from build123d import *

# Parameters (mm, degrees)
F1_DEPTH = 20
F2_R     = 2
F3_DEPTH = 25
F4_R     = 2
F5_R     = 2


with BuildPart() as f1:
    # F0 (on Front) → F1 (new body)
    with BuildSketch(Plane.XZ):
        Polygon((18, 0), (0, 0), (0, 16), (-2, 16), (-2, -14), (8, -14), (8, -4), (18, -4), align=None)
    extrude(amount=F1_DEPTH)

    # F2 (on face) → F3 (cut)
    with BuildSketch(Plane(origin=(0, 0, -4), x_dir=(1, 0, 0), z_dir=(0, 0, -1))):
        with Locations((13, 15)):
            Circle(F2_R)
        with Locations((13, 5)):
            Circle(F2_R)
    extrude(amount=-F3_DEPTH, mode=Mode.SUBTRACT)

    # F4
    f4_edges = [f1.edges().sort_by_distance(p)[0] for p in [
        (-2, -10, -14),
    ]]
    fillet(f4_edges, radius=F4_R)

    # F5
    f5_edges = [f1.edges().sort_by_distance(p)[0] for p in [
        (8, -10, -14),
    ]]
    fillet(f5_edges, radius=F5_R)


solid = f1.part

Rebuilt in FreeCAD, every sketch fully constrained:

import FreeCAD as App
import Part
import Sketcher

V = App.Vector
Q = App.Units.Quantity


def edges_at(feature, points):
    """Names of the edges that pass closest to the given points."""
    edges = feature.Shape.Edges
    near = lambda p: min(range(len(edges)), key=lambda i: edges[i].distToShape(Part.Vertex(*p))[0])
    return sorted({f"Edge{near(p) + 1}" for p in points})

doc = App.newDocument("Part")
body = doc.addObject("PartDesign::Body", "Body")

# Sketch on XZ plane
sketch1 = body.newObject("Sketcher::SketchObject", "Sketch")
sketch1.AttachmentSupport = (doc.getObject("XZ_Plane"), [""])
sketch1.MapMode = "FlatFace"
sketch1.addGeometry([
    Part.LineSegment(V(18, 0, 0), V(0, 0, 0)),  # 0
    Part.LineSegment(V(0, 0, 0), V(0, 16, 0)),  # 1
    Part.LineSegment(V(0, 16, 0), V(-2, 16, 0)),  # 2
    Part.LineSegment(V(-2, 16, 0), V(-2, -14, 0)),  # 3
    Part.LineSegment(V(-2, -14, 0), V(8, -14, 0)),  # 4
    Part.LineSegment(V(8, -14, 0), V(8, -4, 0)),  # 5
    Part.LineSegment(V(8, -4, 0), V(18, -4, 0)),  # 6
    Part.LineSegment(V(18, -4, 0), V(18, 0, 0)),  # 7
], False)
sketch1.addConstraint([
    Sketcher.Constraint("Coincident", 0, 2, 1, 1),
    Sketcher.Constraint("Coincident", 1, 2, 2, 1),
    Sketcher.Constraint("Coincident", 2, 2, 3, 1),
    Sketcher.Constraint("Coincident", 3, 2, 4, 1),
    Sketcher.Constraint("Coincident", 4, 2, 5, 1),
    Sketcher.Constraint("Coincident", 5, 2, 6, 1),
    Sketcher.Constraint("Coincident", 6, 2, 7, 1),
    Sketcher.Constraint("Coincident", 7, 2, 0, 1),
    Sketcher.Constraint("Horizontal", 0),
    Sketcher.Constraint("Vertical", 1),
    Sketcher.Constraint("Horizontal", 2),
    Sketcher.Constraint("Vertical", 3),
    Sketcher.Constraint("Horizontal", 4),
    Sketcher.Constraint("Vertical", 5),
    Sketcher.Constraint("Horizontal", 6),
    Sketcher.Constraint("Vertical", 7),
    Sketcher.Constraint("Coincident", 0, 2, -1, 1),
    Sketcher.Constraint("Equal", 4, 6),
    Sketcher.Constraint("Equal", 6, 5),
    Sketcher.Constraint("DistanceX", 0, 2, 0, 1, Q("18 mm")),
    Sketcher.Constraint("DistanceX", 2, 2, 2, 1, Q("2 mm")),
    Sketcher.Constraint("DistanceY", 1, 1, 1, 2, Q("16 mm")),
    Sketcher.Constraint("DistanceY", 3, 2, 3, 1, Q("30 mm")),
])
pad1 = body.newObject("PartDesign::Pad", "Pad")
pad1.Profile = sketch1
pad1.Length = 20

# Sketch on XY plane
sketch2 = body.newObject("Sketcher::SketchObject", "Sketch001")
sketch2.AttachmentSupport = (doc.getObject("XY_Plane"), [""])
sketch2.MapMode = "FlatFace"
sketch2.AttachmentOffset = App.Placement(V(0, 0, -4), App.Rotation())
sketch2.addGeometry([
    Part.Circle(V(13, -15, 0), V(0, 0, 1), 2),
    Part.Circle(V(13, -5, 0), V(0, 0, 1), 2),
], False)
sketch2.addConstraint([
    Sketcher.Constraint("Equal", 0, 1),
    Sketcher.Constraint("Vertical", 0, 3, 1, 3),
    Sketcher.Constraint("Diameter", 0, Q("4 mm")),
    Sketcher.Constraint("DistanceX", -1, 1, 0, 3, Q("13 mm")),
    Sketcher.Constraint("DistanceY", 0, 3, -1, 1, Q("15 mm")),
    Sketcher.Constraint("DistanceY", 1, 3, -1, 1, Q("5 mm")),
])
pocket1 = body.newObject("PartDesign::Pocket", "Pocket")
pocket1.Profile = sketch2
pocket1.Length = 25
pocket1.Reversed = True
doc.recompute()

fillet = body.newObject("PartDesign::Fillet", "Fillet")
fillet.Base = (pocket1, edges_at(pocket1, [(-2, -10, -14)]))
fillet.Radius = 2
doc.recompute()

fillet2 = body.newObject("PartDesign::Fillet", "Fillet001")
fillet2.Base = (fillet, edges_at(fillet, [(8, -10, -14)]))
fillet2.Radius = 2

doc.recompute()
